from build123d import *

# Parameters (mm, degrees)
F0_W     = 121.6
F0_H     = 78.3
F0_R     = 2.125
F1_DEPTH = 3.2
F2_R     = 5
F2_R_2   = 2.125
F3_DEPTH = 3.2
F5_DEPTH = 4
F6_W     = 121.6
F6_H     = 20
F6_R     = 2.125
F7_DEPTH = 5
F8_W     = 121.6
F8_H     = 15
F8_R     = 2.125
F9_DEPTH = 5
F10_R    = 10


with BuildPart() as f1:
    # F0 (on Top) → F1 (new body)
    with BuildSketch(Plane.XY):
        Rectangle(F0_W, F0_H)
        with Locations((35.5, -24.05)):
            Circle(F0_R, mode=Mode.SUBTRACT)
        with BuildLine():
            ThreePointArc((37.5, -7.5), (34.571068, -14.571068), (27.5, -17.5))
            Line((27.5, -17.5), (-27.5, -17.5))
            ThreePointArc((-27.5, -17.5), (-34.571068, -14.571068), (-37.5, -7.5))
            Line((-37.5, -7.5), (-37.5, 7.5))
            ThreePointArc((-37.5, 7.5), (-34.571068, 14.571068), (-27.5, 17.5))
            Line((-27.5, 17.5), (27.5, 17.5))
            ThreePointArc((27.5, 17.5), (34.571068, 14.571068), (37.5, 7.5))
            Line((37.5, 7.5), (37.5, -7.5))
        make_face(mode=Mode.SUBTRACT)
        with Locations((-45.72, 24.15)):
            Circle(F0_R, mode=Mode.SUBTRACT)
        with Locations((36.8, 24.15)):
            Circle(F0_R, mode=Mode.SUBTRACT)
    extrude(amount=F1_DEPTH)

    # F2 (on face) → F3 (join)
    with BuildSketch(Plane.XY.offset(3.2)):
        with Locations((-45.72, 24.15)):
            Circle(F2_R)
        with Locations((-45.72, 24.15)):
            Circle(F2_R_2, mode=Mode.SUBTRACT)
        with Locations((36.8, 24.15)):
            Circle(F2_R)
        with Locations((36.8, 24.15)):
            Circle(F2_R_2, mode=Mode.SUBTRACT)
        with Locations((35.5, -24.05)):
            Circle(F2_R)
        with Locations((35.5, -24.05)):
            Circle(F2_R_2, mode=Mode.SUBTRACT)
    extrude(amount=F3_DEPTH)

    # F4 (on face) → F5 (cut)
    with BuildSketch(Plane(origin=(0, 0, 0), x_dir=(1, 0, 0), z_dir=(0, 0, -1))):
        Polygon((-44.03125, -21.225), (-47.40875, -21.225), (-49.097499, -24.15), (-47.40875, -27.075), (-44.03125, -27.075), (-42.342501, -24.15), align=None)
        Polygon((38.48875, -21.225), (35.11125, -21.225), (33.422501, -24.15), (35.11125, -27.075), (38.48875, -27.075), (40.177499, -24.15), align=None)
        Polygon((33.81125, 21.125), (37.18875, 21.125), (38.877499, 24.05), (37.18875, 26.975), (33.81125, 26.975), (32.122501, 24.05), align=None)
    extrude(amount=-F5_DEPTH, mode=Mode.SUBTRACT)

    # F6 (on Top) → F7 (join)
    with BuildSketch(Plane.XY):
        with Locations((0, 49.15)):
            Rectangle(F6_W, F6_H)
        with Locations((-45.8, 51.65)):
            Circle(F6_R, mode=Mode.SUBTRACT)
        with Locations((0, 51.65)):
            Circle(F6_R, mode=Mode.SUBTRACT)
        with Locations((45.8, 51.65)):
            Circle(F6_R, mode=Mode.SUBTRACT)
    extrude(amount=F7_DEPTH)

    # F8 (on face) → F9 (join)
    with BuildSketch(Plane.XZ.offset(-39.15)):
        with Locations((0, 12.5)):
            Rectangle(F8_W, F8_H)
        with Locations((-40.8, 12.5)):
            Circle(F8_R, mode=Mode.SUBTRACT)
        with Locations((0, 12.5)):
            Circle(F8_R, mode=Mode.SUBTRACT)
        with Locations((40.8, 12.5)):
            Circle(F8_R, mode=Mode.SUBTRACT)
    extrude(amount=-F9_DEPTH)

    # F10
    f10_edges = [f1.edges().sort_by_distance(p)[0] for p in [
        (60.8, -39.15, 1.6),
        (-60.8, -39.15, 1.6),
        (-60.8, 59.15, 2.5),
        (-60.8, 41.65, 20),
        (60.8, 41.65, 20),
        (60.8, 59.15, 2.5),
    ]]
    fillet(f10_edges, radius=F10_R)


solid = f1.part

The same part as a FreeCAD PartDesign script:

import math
import FreeCAD as App
import Part
import Sketcher

V = App.Vector
Q = App.Units.Quantity


def edges_at(feature, points):
    """Names of the edges that pass closest to the given points."""
    edges = feature.Shape.Edges
    near = lambda p: min(range(len(edges)), key=lambda i: edges[i].distToShape(Part.Vertex(*p))[0])
    return sorted({f"Edge{near(p) + 1}" for p in points})

doc = App.newDocument("Part")
body = doc.addObject("PartDesign::Body", "Body")

# Sketch on XY plane
sketch1 = body.newObject("Sketcher::SketchObject", "Sketch")
sketch1.AttachmentSupport = (doc.getObject("XY_Plane"), [""])
sketch1.MapMode = "FlatFace"
sketch1.addGeometry([
    Part.LineSegment(V(-60.8, 39.1, 0), V(-60.8, -39.1, 0)),  # 0
    Part.LineSegment(V(-60.8, -39.1, 0), V(60.8, -39.1, 0)),  # 1
    Part.LineSegment(V(60.8, -39.1, 0), V(60.8, 39.1, 0)),  # 2
    Part.LineSegment(V(60.8, 39.1, 0), V(-60.8, 39.1, 0)),  # 3
    Part.Circle(V(35.5, -24.1, 0), V(0, 0, 1), 2.1),  # 4
    Part.LineSegment(V(37.5, 7.5, 0), V(37.5, -7.5, 0)),  # 5
    Part.ArcOfCircle(Part.Circle(V(27.5, -7.5, 0), V(0, 0, 1), 10), math.radians(-90), math.radians(0)),  # 6
    Part.LineSegment(V(27.5, -17.5, 0), V(-27.5, -17.5, 0)),  # 7
    Part.ArcOfCircle(Part.Circle(V(-27.5, -7.5, 0), V(0, 0, 1), 10), math.radians(180), math.radians(270)),  # 8
    Part.LineSegment(V(-37.5, -7.5, 0), V(-37.5, 7.5, 0)),  # 9
    Part.ArcOfCircle(Part.Circle(V(-27.5, 7.5, 0), V(0, 0, 1), 10), math.radians(90), math.radians(180)),  # 10
    Part.LineSegment(V(-27.5, 17.5, 0), V(27.5, 17.5, 0)),  # 11
    Part.ArcOfCircle(Part.Circle(V(27.5, 7.5, 0), V(0, 0, 1), 10), math.radians(0), math.radians(90)),  # 12
    Part.Circle(V(-45.7, 24.1, 0), V(0, 0, 1), 2.1),  # 13
    Part.Circle(V(36.8, 24.1, 0), V(0, 0, 1), 2.1),  # 14
], False)
sketch1.addConstraint([
    Sketcher.Constraint("Coincident", 0, 2, 1, 1),
    Sketcher.Constraint("Coincident", 1, 2, 2, 1),
    Sketcher.Constraint("Coincident", 2, 2, 3, 1),
    Sketcher.Constraint("Coincident", 3, 2, 0, 1),
    Sketcher.Constraint("Tangent", 5, 2, 6, 2),
    Sketcher.Constraint("Tangent", 6, 1, 7, 1),
    Sketcher.Constraint("Tangent", 7, 2, 8, 2),
    Sketcher.Constraint("Tangent", 8, 1, 9, 1),
    Sketcher.Constraint("Tangent", 9, 2, 10, 2),
    Sketcher.Constraint("Tangent", 10, 1, 11, 1),
    Sketcher.Constraint("Tangent", 11, 2, 12, 2),
    Sketcher.Constraint("Tangent", 12, 1, 5, 1),
    Sketcher.Constraint("Vertical", 0),
    Sketcher.Constraint("Horizontal", 1),
    Sketcher.Constraint("Vertical", 2),
    Sketcher.Constraint("Horizontal", 3),
    Sketcher.Constraint("Vertical", 5),
    Sketcher.Constraint("Horizontal", 7),
    Sketcher.Constraint("Vertical", 9),
    Sketcher.Constraint("Horizontal", 11),
    Sketcher.Constraint("Equal", 6, 8),
    Sketcher.Constraint("Equal", 8, 10),
    Sketcher.Constraint("Equal", 10, 12),
    Sketcher.Constraint("Equal", 4, 13),
    Sketcher.Constraint("Equal", 13, 14),
    Sketcher.Constraint("Symmetric", 6, 3, 10, 3, -1, 1),
    Sketcher.Constraint("Symmetric", 0, 2, 2, 2, -1, 1),
    Sketcher.Constraint("Horizontal", 13, 3, 14, 3),
    Sketcher.Constraint("Radius", 6, 9.999999),
    Sketcher.Constraint("Diameter", 4, 4.25),
    Sketcher.Constraint("DistanceX", 7, 2, 7, 1, 55.0),
    Sketcher.Constraint("DistanceY", 5, 2, 5, 1, 15.0),
    Sketcher.Constraint("DistanceX", 1, 1, 1, 2, 121.6),
    Sketcher.Constraint("DistanceY", 0, 2, 0, 1, 78.3),
    Sketcher.Constraint("DistanceX", 6, 3, 4, 3, 7.999999),
    Sketcher.Constraint("DistanceX", 14, 3, 1, 2, 24.0),
    Sketcher.Constraint("DistanceY", 14, 3, 2, 2, 15.0),
    Sketcher.Constraint("DistanceY", 4, 3, 13, 3, 48.2),
    Sketcher.Constraint("DistanceX", 13, 3, -1, 1, 45.72),
])
pad1 = body.newObject("PartDesign::Pad", "Pad")
pad1.Profile = sketch1
pad1.Length = 3.2

# Sketch on XY plane
sketch2 = body.newObject("Sketcher::SketchObject", "Sketch001")
sketch2.AttachmentSupport = (doc.getObject("XY_Plane"), [""])
sketch2.MapMode = "FlatFace"
sketch2.AttachmentOffset = App.Placement(V(0, 0, 3.2), App.Rotation())
sketch2.addGeometry([
    Part.Circle(V(-45.7, 24.1, 0), V(0, 0, 1), 5),  # 0
    Part.Circle(V(-45.7, 24.1, 0), V(0, 0, 1), 2.1),  # 1
    Part.Circle(V(36.8, 24.1, 0), V(0, 0, 1), 5),  # 2
    Part.Circle(V(36.8, 24.1, 0), V(0, 0, 1), 2.1),  # 3
    Part.Circle(V(35.5, -24.1, 0), V(0, 0, 1), 5),  # 4
    Part.Circle(V(35.5, -24.1, 0), V(0, 0, 1), 2.1),  # 5
], False)
sketch2.addConstraint([
    Sketcher.Constraint("Coincident", 1, 3, 0, 3),
    Sketcher.Constraint("Coincident", 3, 3, 2, 3),
    Sketcher.Constraint("Coincident", 5, 3, 4, 3),
    Sketcher.Constraint("Equal", 0, 2),
    Sketcher.Constraint("Equal", 1, 3),
    Sketcher.Constraint("Equal", 2, 4),
    Sketcher.Constraint("Equal", 3, 5),
    Sketcher.Constraint("Horizontal", 1, 3, 2, 3),
    Sketcher.Constraint("Diameter", 0, 10.0),
    Sketcher.Constraint("Diameter", 1, 4.25),
    Sketcher.Constraint("DistanceX", -1, 1, 2, 3, 36.8),
    Sketcher.Constraint("DistanceX", -1, 1, 4, 3, 35.5),
    Sketcher.Constraint("DistanceY", 4, 3, 2, 3, 48.2),
    Sketcher.Constraint("DistanceX", 0, 3, -1, 1, 45.72),
    Sketcher.Constraint("DistanceY", -1, 1, 0, 3, 24.15),
])
pad2 = body.newObject("PartDesign::Pad", "Pad001")
pad2.Profile = sketch2
pad2.Length = 3.2

# Sketch on XY plane
sketch3 = body.newObject("Sketcher::SketchObject", "Sketch002")
sketch3.AttachmentSupport = (doc.getObject("XY_Plane"), [""])
sketch3.MapMode = "FlatFace"
sketch3.addGeometry([
    Part.LineSegment(V(-44, 21.2, 0), V(-47.4, 21.2, 0)),  # 0
    Part.LineSegment(V(-47.4, 21.2, 0), V(-49.1, 24.1, 0)),  # 1
    Part.LineSegment(V(-49.1, 24.1, 0), V(-47.4, 27.1, 0)),  # 2
    Part.LineSegment(V(-47.4, 27.1, 0), V(-44, 27.1, 0)),  # 3
    Part.LineSegment(V(-44, 27.1, 0), V(-42.3, 24.1, 0)),  # 4
    Part.LineSegment(V(-42.3, 24.1, 0), V(-44, 21.2, 0)),  # 5
    Part.LineSegment(V(38.5, 21.2, 0), V(35.1, 21.2, 0)),  # 6
    Part.LineSegment(V(35.1, 21.2, 0), V(33.4, 24.1, 0)),  # 7
    Part.LineSegment(V(33.4, 24.1, 0), V(35.1, 27.1, 0)),  # 8
    Part.LineSegment(V(35.1, 27.1, 0), V(38.5, 27.1, 0)),  # 9
    Part.LineSegment(V(38.5, 27.1, 0), V(40.2, 24.1, 0)),  # 10
    Part.LineSegment(V(40.2, 24.1, 0), V(38.5, 21.2, 0)),  # 11
    Part.LineSegment(V(33.8, -21.1, 0), V(37.2, -21.1, 0)),  # 12
    Part.LineSegment(V(37.2, -21.1, 0), V(38.9, -24.1, 0)),  # 13
    Part.LineSegment(V(38.9, -24.1, 0), V(37.2, -27, 0)),  # 14
    Part.LineSegment(V(37.2, -27, 0), V(33.8, -27, 0)),  # 15
    Part.LineSegment(V(33.8, -27, 0), V(32.1, -24.1, 0)),  # 16
    Part.LineSegment(V(32.1, -24.1, 0), V(33.8, -21.1, 0)),  # 17
], False)
sketch3.addConstraint([
    Sketcher.Constraint("Coincident", 0, 2, 1, 1),
    Sketcher.Constraint("Coincident", 1, 2, 2, 1),
    Sketcher.Constraint("Coincident", 2, 2, 3, 1),
    Sketcher.Constraint("Coincident", 3, 2, 4, 1),
    Sketcher.Constraint("Coincident", 4, 2, 5, 1),
    Sketcher.Constraint("Coincident", 5, 2, 0, 1),
    Sketcher.Constraint("Coincident", 6, 2, 7, 1),
    Sketcher.Constraint("Coincident", 7, 2, 8, 1),
    Sketcher.Constraint("Coincident", 8, 2, 9, 1),
    Sketcher.Constraint("Coincident", 9, 2, 10, 1),
    Sketcher.Constraint("Coincident", 10, 2, 11, 1),
    Sketcher.Constraint("Coincident", 11, 2, 6, 1),
    Sketcher.Constraint("Coincident", 12, 2, 13, 1),
    Sketcher.Constraint("Coincident", 13, 2, 14, 1),
    Sketcher.Constraint("Coincident", 14, 2, 15, 1),
    Sketcher.Constraint("Coincident", 15, 2, 16, 1),
    Sketcher.Constraint("Coincident", 16, 2, 17, 1),
    Sketcher.Constraint("Coincident", 17, 2, 12, 1),
    Sketcher.Constraint("Horizontal", 0),
    Sketcher.Constraint("Horizontal", 3),
    Sketcher.Constraint("Horizontal", 6),
    Sketcher.Constraint("Horizontal", 9),
    Sketcher.Constraint("Horizontal", 12),
    Sketcher.Constraint("Horizontal", 15),
    Sketcher.Constraint("Parallel", 1, 4),
    Sketcher.Constraint("Parallel", 2, 5),
    Sketcher.Constraint("Parallel", 4, 7),
    Sketcher.Constraint("Parallel", 5, 8),
    Sketcher.Constraint("Parallel", 7, 10),
    Sketcher.Constraint("Parallel", 8, 11),
    Sketcher.Constraint("Parallel", 10, 13),
    Sketcher.Constraint("Parallel", 11, 14),
    Sketcher.Constraint("Parallel", 13, 16),
    Sketcher.Constraint("Parallel", 14, 17),
    Sketcher.Constraint("Horizontal", 1, 2, 4, 2),
    Sketcher.Constraint("Horizontal", 5, 2, 6, 2),
    Sketcher.Constraint("Horizontal", 4, 2, 7, 2),
    Sketcher.Constraint("Horizontal", 3, 2, 8, 2),
    Sketcher.Constraint("Horizontal", 7, 2, 10, 2),
    Sketcher.Constraint("Horizontal", 13, 2, 16, 2),
    Sketcher.Constraint("Vertical", 0, 2, 2, 2),
    Sketcher.Constraint("Vertical", 3, 2, 5, 2),
    Sketcher.Constraint("Vertical", 12, 2, 14, 2),
    Sketcher.Constraint("Equal", 3, 6),
    Sketcher.Constraint("Equal", 9, 12),
    Sketcher.Constraint("Equal", 11, 13),
    Sketcher.Constraint("Angle", 1, Q("119.999992 deg")),
    Sketcher.Constraint("DistanceX", 12, 2, 11, 2, 1.3),
    Sketcher.Constraint("DistanceY", 12, 2, 9, 2, 48.2),
    Sketcher.Constraint("DistanceY", -1, 1, 1, 2, 24.15),
    Sketcher.Constraint("DistanceY", 0, 2, 2, 2, 5.85),
    Sketcher.Constraint("DistanceX", 0, 2, 6, 2, 82.52),
    Sketcher.Constraint("DistanceX", 0, 2, 0, 1, 3.3775),
    Sketcher.Constraint("DistanceX", 1, 2, -1, 1, 49.097499),
])
pocket1 = body.newObject("PartDesign::Pocket", "Pocket")
pocket1.Profile = sketch3
pocket1.Length = 4
pocket1.Reversed = True

# Sketch on XY plane
sketch4 = body.newObject("Sketcher::SketchObject", "Sketch003")
sketch4.AttachmentSupport = (doc.getObject("XY_Plane"), [""])
sketch4.MapMode = "FlatFace"
sketch4.addGeometry([
    Part.LineSegment(V(-60.8, 59.1, 0), V(-60.8, 39.1, 0)),  # 0
    Part.LineSegment(V(-60.8, 39.1, 0), V(60.8, 39.1, 0)),  # 1
    Part.LineSegment(V(60.8, 39.1, 0), V(60.8, 59.1, 0)),  # 2
    Part.LineSegment(V(60.8, 59.1, 0), V(-60.8, 59.1, 0)),  # 3
    Part.Circle(V(-45.8, 51.6, 0), V(0, 0, 1), 2.1),  # 4
    Part.Circle(V(0, 51.6, 0), V(0, 0, 1), 2.1),  # 5
    Part.Circle(V(45.8, 51.6, 0), V(0, 0, 1), 2.1),  # 6
], False)
sketch4.addConstraint([
    Sketcher.Constraint("Coincident", 0, 2, 1, 1),
    Sketcher.Constraint("Coincident", 1, 2, 2, 1),
    Sketcher.Constraint("Coincident", 2, 2, 3, 1),
    Sketcher.Constraint("Coincident", 3, 2, 0, 1),
    Sketcher.Constraint("Vertical", 0),
    Sketcher.Constraint("Horizontal", 1),
    Sketcher.Constraint("Vertical", 2),
    Sketcher.Constraint("Horizontal", 3),
    Sketcher.Constraint("Equal", 4, 5),
    Sketcher.Constraint("Equal", 5, 6),
    Sketcher.Constraint("Symmetric", 4, 3, 6, 3, -2),
    Sketcher.Constraint("PointOnObject", 5, 3, -2),
    Sketcher.Constraint("Horizontal", 4, 3, 5, 3),
    Sketcher.Constraint("Diameter", 4, 4.25),
    Sketcher.Constraint("DistanceY", 0, 2, 0, 1, 20.0),
    Sketcher.Constraint("DistanceX", 1, 1, 1, 2, 121.6),
    Sketcher.Constraint("DistanceX", 0, 2, 4, 3, 15.0),
    Sketcher.Constraint("DistanceX", 6, 3, 1, 2, 15.0),
    Sketcher.Constraint("DistanceY", 0, 2, 4, 3, 12.5),
    Sketcher.Constraint("DistanceY", -1, 1, 4, 3, 51.65),
])
pad3 = body.newObject("PartDesign::Pad", "Pad002")
pad3.Profile = sketch4
pad3.Length = 5

# Sketch on XZ plane
sketch5 = body.newObject("Sketcher::SketchObject", "Sketch004")
sketch5.AttachmentSupport = (doc.getObject("XZ_Plane"), [""])
sketch5.MapMode = "FlatFace"
sketch5.AttachmentOffset = App.Placement(V(0, 0, -39.15), App.Rotation())
sketch5.addGeometry([
    Part.LineSegment(V(-60.8, 20, 0), V(-60.8, 5, 0)),  # 0
    Part.LineSegment(V(-60.8, 5, 0), V(60.8, 5, 0)),  # 1
    Part.LineSegment(V(60.8, 5, 0), V(60.8, 20, 0)),  # 2
    Part.LineSegment(V(60.8, 20, 0), V(-60.8, 20, 0)),  # 3
    Part.Circle(V(-40.8, 12.5, 0), V(0, 0, 1), 2.1),  # 4
    Part.Circle(V(0, 12.5, 0), V(0, 0, 1), 2.1),  # 5
    Part.Circle(V(40.8, 12.5, 0), V(0, 0, 1), 2.1),  # 6
], False)
sketch5.addConstraint([
    Sketcher.Constraint("Coincident", 0, 2, 1, 1),
    Sketcher.Constraint("Coincident", 1, 2, 2, 1),
    Sketcher.Constraint("Coincident", 2, 2, 3, 1),
    Sketcher.Constraint("Coincident", 3, 2, 0, 1),
    Sketcher.Constraint("Vertical", 0),
    Sketcher.Constraint("Horizontal", 1),
    Sketcher.Constraint("Vertical", 2),
    Sketcher.Constraint("Horizontal", 3),
    Sketcher.Constraint("Equal", 4, 5),
    Sketcher.Constraint("Equal", 5, 6),
    Sketcher.Constraint("Symmetric", 4, 3, 6, 3, -2),
    Sketcher.Constraint("PointOnObject", 5, 3, -2),
    Sketcher.Constraint("Horizontal", 4, 3, 5, 3),
    Sketcher.Constraint("Diameter", 4, 4.25),
    Sketcher.Constraint("DistanceY", 0, 2, 0, 1, 15.0),
    Sketcher.Constraint("DistanceX", 1, 1, 1, 2, 121.6),
    Sketcher.Constraint("DistanceY", -1, 1, 0, 2, 5.0),
    Sketcher.Constraint("DistanceX", 0, 2, 4, 3, 20.0),
    Sketcher.Constraint("DistanceX", 6, 3, 1, 2, 20.0),
    Sketcher.Constraint("DistanceY", -1, 1, 4, 3, 12.5),
])
pad4 = body.newObject("PartDesign::Pad", "Pad003")
pad4.Profile = sketch5
pad4.Length = 5
pad4.Reversed = True
doc.recompute()

fillet = body.newObject("PartDesign::Fillet", "Fillet")
fillet.Base = (pad4, edges_at(pad4, [
    (60.8, -39.15, 1.6),
    (-60.8, -39.15, 1.6),
    (-60.8, 59.15, 2.5),
    (-60.8, 41.65, 20),
    (60.8, 41.65, 20),
    (60.8, 59.15, 2.5),
]))
fillet.Radius = 10

doc.recompute()
